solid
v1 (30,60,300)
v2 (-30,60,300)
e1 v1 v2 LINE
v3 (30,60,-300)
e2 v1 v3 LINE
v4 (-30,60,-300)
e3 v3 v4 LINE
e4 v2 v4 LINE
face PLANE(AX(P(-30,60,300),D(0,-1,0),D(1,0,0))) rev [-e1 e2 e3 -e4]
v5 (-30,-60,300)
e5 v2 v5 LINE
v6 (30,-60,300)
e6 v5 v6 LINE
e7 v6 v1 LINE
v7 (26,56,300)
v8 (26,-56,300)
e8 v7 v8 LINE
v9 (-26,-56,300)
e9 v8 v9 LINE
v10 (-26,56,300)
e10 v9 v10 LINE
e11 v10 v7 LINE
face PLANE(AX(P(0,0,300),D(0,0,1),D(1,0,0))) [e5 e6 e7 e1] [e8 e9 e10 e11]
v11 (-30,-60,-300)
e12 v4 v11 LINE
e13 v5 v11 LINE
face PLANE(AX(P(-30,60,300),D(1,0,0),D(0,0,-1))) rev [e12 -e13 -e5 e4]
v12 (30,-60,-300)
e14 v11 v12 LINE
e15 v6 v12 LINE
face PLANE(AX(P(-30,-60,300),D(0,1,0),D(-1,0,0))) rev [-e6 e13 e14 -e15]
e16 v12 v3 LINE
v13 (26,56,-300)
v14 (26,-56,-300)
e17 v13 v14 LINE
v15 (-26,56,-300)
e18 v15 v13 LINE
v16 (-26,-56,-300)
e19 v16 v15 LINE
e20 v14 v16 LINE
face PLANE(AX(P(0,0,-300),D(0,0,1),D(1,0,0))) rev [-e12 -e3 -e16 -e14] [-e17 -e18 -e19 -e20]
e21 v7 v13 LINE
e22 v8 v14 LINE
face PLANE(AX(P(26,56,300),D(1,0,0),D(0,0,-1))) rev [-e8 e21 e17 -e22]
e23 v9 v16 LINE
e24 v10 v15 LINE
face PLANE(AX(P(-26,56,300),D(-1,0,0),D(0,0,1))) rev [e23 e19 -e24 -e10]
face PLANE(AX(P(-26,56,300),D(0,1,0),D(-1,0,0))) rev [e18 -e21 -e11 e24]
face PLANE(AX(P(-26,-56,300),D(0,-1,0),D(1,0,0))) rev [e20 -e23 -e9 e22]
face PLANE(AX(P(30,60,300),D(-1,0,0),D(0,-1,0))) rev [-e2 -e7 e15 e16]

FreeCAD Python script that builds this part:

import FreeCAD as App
import Part
import Sketcher
Q = App.Units.Quantity


def add_polygon(sketch, points):
    """Adds a closed chain of lines whose ends are joined by coincident constraints."""
    first, n = sketch.GeometryCount, len(points)
    for a, b in zip(points, points[1:] + points[:1]):
        sketch.addGeometry(Part.LineSegment(App.Vector(*a, 0), App.Vector(*b, 0)), False)
    for i in range(n):
        sketch.addConstraint(Sketcher.Constraint("Coincident", first + i, 2, first + (i + 1) % n, 1))

doc = App.newDocument("Part")
body = doc.addObject("PartDesign::Body", "Body")

# Sketch on XY plane
sketch1 = body.newObject("Sketcher::SketchObject", "Sketch")
sketch1.AttachmentSupport = (doc.getObject("XY_Plane"), [""])
sketch1.MapMode = "FlatFace"
add_polygon(sketch1, [(-30, 60), (-30, -60), (30, -60), (30, 60)])  # lines 0-3
add_polygon(sketch1, [(26, -56), (-26, -56), (-26, 56), (26, 56)])  # lines 4-7
sketch1.addConstraint([
    Sketcher.Constraint("Vertical", 0),
    Sketcher.Constraint("Horizontal", 1),
    Sketcher.Constraint("Vertical", 2),
    Sketcher.Constraint("Horizontal", 3),
    Sketcher.Constraint("Horizontal", 4),
    Sketcher.Constraint("Vertical", 5),
    Sketcher.Constraint("Horizontal", 6),
    Sketcher.Constraint("Vertical", 7),
    Sketcher.Constraint("Symmetric", 0, 2, 2, 2, -1, 1),
    Sketcher.Constraint("Symmetric", 4, 2, 6, 2, -1, 1),
    Sketcher.Constraint("DistanceX", 1, 1, 1, 2, Q("60 mm")),
    Sketcher.Constraint("DistanceX", 4, 2, 4, 1, Q("52 mm")),
    Sketcher.Constraint("DistanceY", 0, 2, 0, 1, Q("120 mm")),
    Sketcher.Constraint("DistanceY", 5, 1, 5, 2, Q("112 mm")),
])

# Sketch on XZ plane
sketch2 = body.newObject("Sketcher::SketchObject", "Sketch001")
sketch2.AttachmentSupport = (doc.getObject("XZ_Plane"), [""])
sketch2.MapMode = "FlatFace"
sketch2.addGeometry(Part.BSplineCurve([App.Vector(0, -300, 0), App.Vector(0, 300, 0)], [2, 2], [0, 1], False, 1, [1, 1], False), False)
sketch2.addConstraint(Sketcher.Constraint("Block", 0))
doc.recompute()

additivepipe = body.newObject("PartDesign::AdditivePipe", "AdditivePipe")
additivepipe.Profile = sketch1
additivepipe.Spine = (sketch2, ["Edge1"])

doc.recompute()
